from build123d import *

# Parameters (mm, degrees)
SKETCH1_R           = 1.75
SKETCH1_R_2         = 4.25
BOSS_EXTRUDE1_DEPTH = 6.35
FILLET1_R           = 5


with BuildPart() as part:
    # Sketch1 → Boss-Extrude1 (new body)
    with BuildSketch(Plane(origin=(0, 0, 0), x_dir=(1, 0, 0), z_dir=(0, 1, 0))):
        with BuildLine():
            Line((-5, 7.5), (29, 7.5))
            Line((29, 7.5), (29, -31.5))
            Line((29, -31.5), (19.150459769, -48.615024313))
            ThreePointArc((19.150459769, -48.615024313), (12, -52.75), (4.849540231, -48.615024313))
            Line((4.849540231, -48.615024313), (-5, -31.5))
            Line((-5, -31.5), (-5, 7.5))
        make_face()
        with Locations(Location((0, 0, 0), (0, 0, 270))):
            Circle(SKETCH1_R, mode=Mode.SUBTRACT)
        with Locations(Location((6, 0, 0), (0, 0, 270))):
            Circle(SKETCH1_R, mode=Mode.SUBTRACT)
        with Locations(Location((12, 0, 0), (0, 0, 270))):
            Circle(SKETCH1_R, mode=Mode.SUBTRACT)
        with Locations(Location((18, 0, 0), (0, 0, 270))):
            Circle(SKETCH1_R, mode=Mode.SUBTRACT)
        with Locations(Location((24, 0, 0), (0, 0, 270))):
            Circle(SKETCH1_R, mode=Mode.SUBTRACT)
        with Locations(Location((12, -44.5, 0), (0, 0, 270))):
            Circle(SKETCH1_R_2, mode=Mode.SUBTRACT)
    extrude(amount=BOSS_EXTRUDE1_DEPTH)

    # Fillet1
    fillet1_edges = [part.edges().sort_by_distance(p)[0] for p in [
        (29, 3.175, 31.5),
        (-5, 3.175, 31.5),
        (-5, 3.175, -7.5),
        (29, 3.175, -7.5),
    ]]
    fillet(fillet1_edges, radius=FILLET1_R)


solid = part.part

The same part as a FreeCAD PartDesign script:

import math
import FreeCAD as App
import Part
import Sketcher

V = App.Vector
Q = App.Units.Quantity


def edges_at(feature, points):
    """Names of the edges that pass closest to the given points."""
    edges = feature.Shape.Edges
    near = lambda p: min(range(len(edges)), key=lambda i: edges[i].distToShape(Part.Vertex(*p))[0])
    return sorted({f"Edge{near(p) + 1}" for p in points})

doc = App.newDocument("Part")
params = doc.addObject("Spreadsheet::Sheet", "Params")
for row, (alias, value) in enumerate([
    ("sketch1_diameter", "8.5 mm"),
    ("sketch1_diameter2", "3.5 mm"),
    ("sketch1_width", "34 mm"),
    ("sketch1_height", "39 mm"),
    ("sketch1_radius", "8.25 mm"),
    ("pad1_length", "6.35 mm"),
    ("fillet_radius", "5 mm"),
], start=1):
    params.set(f"A{row}", alias)
    params.set(f"B{row}", "=" + value)
    params.setAlias(f"B{row}", alias)

body = doc.addObject("PartDesign::Body", "Body")

# Sketch on XZ plane
sketch1 = doc.addObject("Sketcher::SketchObject", "Sketch")
body.addObject(sketch1)
sketch1.AttachmentSupport = (doc.XZ_Plane, [""])
sketch1.MapMode = "FlatFace"
sketch1.addGeometry(Part.LineSegment(V(29, -7.5, 0), V(-5, -7.5, 0)), False)
sketch1.addGeometry(Part.LineSegment(V(-5, -7.5, 0), V(-5, 31.5, 0)), False)
sketch1.addGeometry(Part.LineSegment(V(-5, 31.5, 0), V(4.8, 48.6, 0)), False)
sketch1.addGeometry(Part.ArcOfCircle(Part.Circle(V(12, 44.5, 0), V(0, 0, 1), 8.3), math.radians(30), math.radians(150)), False)
sketch1.addGeometry(Part.LineSegment(V(19.2, 48.6, 0), V(29, 31.5, 0)), False)
sketch1.addGeometry(Part.LineSegment(V(29, 31.5, 0), V(29, -7.5, 0)), False)
sketch1.addGeometry(Part.Circle(V(12, 44.5, 0), V(0, 0, 1), 4.2), False)
sketch1.addGeometry(Part.Circle(V(24, 0, 0), V(0, 0, 1), 1.8), False)
sketch1.addGeometry(Part.Circle(V(18, 0, 0), V(0, 0, 1), 1.8), False)
sketch1.addGeometry(Part.Circle(V(12, 0, 0), V(0, 0, 1), 1.8), False)
sketch1.addGeometry(Part.Circle(V(6, 0, 0), V(0, 0, 1), 1.8), False)
sketch1.addGeometry(Part.Circle(V(0, 0, 0), V(0, 0, 1), 1.8), False)
sketch1.addConstraint(Sketcher.Constraint("Coincident", 0, 2, 1, 1))
sketch1.addConstraint(Sketcher.Constraint("Coincident", 1, 2, 2, 1))
sketch1.addConstraint(Sketcher.Constraint("Tangent", 2, 2, 3, 2))
sketch1.addConstraint(Sketcher.Constraint("Tangent", 3, 1, 4, 1))
sketch1.addConstraint(Sketcher.Constraint("Coincident", 4, 2, 5, 1))
sketch1.addConstraint(Sketcher.Constraint("Coincident", 5, 2, 0, 1))
sketch1.addConstraint(Sketcher.Constraint("Horizontal", 0))
sketch1.addConstraint(Sketcher.Constraint("Vertical", 1))
sketch1.addConstraint(Sketcher.Constraint("Vertical", 5))
sketch1.addConstraint(Sketcher.Constraint("Coincident", 11, 3, -1, 1))
sketch1.addConstraint(Sketcher.Constraint("Coincident", 6, 3, 3, 3))
sketch1.addConstraint(Sketcher.Constraint("Equal", 7, 8))
sketch1.addConstraint(Sketcher.Constraint("Equal", 8, 9))
sketch1.addConstraint(Sketcher.Constraint("Equal", 9, 10))
sketch1.addConstraint(Sketcher.Constraint("Equal", 10, 11))
sketch1.addConstraint(Sketcher.Constraint("PointOnObject", 7, 3, -1))
sketch1.addConstraint(Sketcher.Constraint("PointOnObject", 8, 3, -1))
sketch1.addConstraint(Sketcher.Constraint("PointOnObject", 9, 3, -1))
sketch1.addConstraint(Sketcher.Constraint("PointOnObject", 10, 3, -1))
sketch1.addConstraint(Sketcher.Constraint("Horizontal", 2, 2, 3, 1))
sketch1.addConstraint(Sketcher.Constraint("Horizontal", 1, 2, 4, 2))
sketch1.addConstraint(Sketcher.Constraint("Vertical", 6, 3, 9, 3))
sketch1.addConstraint(Sketcher.Constraint("Diameter", 6, Q("8.5 mm")))
sketch1.addConstraint(Sketcher.Constraint("Diameter", 7, Q("3.5 mm")))
sketch1.addConstraint(Sketcher.Constraint("DistanceX", 0, 2, 0, 1, Q("34 mm")))
sketch1.addConstraint(Sketcher.Constraint("DistanceY", 1, 1, 1, 2, Q("39 mm")))
sketch1.addConstraint(Sketcher.Constraint("Radius", 3, Q("8.25 mm")))
sketch1.addConstraint(Sketcher.Constraint("DistanceX", -1, 1, 3, 3, Q("12 mm")))
sketch1.addConstraint(Sketcher.Constraint("DistanceX", -1, 1, 7, 3, Q("24 mm")))
sketch1.addConstraint(Sketcher.Constraint("DistanceX", -1, 1, 8, 3, Q("18 mm")))
sketch1.addConstraint(Sketcher.Constraint("DistanceX", -1, 1, 10, 3, Q("6 mm")))
sketch1.addConstraint(Sketcher.Constraint("DistanceY", 1, 2, 3, 3, Q("13 mm")))
sketch1.addConstraint(Sketcher.Constraint("DistanceY", -1, 1, 3, 3, Q("44.5 mm")))
sketch1.setExpression("Constraints[22]", "Params.sketch1_diameter")
sketch1.setExpression("Constraints[23]", "Params.sketch1_diameter2")
sketch1.setExpression("Constraints[24]", "Params.sketch1_width")
sketch1.setExpression("Constraints[25]", "Params.sketch1_height")
sketch1.setExpression("Constraints[26]", "Params.sketch1_radius")
pad1 = doc.addObject("PartDesign::Pad", "Pad")
body.addObject(pad1)
pad1.Profile = sketch1
pad1.setExpression("Length", "Params.pad1_length")
pad1.Reversed = True
doc.recompute()

fillet = doc.addObject("PartDesign::Fillet", "Fillet")
body.addObject(fillet)
fillet.Base = (pad1, edges_at(pad1, [
    (29, 3.175, 31.5),
    (-5, 3.175, 31.5),
    (-5, 3.175, -7.5),
    (29, 3.175, -7.5),
]))
fillet.setExpression("Radius", "Params.fillet_radius")

doc.recompute()
